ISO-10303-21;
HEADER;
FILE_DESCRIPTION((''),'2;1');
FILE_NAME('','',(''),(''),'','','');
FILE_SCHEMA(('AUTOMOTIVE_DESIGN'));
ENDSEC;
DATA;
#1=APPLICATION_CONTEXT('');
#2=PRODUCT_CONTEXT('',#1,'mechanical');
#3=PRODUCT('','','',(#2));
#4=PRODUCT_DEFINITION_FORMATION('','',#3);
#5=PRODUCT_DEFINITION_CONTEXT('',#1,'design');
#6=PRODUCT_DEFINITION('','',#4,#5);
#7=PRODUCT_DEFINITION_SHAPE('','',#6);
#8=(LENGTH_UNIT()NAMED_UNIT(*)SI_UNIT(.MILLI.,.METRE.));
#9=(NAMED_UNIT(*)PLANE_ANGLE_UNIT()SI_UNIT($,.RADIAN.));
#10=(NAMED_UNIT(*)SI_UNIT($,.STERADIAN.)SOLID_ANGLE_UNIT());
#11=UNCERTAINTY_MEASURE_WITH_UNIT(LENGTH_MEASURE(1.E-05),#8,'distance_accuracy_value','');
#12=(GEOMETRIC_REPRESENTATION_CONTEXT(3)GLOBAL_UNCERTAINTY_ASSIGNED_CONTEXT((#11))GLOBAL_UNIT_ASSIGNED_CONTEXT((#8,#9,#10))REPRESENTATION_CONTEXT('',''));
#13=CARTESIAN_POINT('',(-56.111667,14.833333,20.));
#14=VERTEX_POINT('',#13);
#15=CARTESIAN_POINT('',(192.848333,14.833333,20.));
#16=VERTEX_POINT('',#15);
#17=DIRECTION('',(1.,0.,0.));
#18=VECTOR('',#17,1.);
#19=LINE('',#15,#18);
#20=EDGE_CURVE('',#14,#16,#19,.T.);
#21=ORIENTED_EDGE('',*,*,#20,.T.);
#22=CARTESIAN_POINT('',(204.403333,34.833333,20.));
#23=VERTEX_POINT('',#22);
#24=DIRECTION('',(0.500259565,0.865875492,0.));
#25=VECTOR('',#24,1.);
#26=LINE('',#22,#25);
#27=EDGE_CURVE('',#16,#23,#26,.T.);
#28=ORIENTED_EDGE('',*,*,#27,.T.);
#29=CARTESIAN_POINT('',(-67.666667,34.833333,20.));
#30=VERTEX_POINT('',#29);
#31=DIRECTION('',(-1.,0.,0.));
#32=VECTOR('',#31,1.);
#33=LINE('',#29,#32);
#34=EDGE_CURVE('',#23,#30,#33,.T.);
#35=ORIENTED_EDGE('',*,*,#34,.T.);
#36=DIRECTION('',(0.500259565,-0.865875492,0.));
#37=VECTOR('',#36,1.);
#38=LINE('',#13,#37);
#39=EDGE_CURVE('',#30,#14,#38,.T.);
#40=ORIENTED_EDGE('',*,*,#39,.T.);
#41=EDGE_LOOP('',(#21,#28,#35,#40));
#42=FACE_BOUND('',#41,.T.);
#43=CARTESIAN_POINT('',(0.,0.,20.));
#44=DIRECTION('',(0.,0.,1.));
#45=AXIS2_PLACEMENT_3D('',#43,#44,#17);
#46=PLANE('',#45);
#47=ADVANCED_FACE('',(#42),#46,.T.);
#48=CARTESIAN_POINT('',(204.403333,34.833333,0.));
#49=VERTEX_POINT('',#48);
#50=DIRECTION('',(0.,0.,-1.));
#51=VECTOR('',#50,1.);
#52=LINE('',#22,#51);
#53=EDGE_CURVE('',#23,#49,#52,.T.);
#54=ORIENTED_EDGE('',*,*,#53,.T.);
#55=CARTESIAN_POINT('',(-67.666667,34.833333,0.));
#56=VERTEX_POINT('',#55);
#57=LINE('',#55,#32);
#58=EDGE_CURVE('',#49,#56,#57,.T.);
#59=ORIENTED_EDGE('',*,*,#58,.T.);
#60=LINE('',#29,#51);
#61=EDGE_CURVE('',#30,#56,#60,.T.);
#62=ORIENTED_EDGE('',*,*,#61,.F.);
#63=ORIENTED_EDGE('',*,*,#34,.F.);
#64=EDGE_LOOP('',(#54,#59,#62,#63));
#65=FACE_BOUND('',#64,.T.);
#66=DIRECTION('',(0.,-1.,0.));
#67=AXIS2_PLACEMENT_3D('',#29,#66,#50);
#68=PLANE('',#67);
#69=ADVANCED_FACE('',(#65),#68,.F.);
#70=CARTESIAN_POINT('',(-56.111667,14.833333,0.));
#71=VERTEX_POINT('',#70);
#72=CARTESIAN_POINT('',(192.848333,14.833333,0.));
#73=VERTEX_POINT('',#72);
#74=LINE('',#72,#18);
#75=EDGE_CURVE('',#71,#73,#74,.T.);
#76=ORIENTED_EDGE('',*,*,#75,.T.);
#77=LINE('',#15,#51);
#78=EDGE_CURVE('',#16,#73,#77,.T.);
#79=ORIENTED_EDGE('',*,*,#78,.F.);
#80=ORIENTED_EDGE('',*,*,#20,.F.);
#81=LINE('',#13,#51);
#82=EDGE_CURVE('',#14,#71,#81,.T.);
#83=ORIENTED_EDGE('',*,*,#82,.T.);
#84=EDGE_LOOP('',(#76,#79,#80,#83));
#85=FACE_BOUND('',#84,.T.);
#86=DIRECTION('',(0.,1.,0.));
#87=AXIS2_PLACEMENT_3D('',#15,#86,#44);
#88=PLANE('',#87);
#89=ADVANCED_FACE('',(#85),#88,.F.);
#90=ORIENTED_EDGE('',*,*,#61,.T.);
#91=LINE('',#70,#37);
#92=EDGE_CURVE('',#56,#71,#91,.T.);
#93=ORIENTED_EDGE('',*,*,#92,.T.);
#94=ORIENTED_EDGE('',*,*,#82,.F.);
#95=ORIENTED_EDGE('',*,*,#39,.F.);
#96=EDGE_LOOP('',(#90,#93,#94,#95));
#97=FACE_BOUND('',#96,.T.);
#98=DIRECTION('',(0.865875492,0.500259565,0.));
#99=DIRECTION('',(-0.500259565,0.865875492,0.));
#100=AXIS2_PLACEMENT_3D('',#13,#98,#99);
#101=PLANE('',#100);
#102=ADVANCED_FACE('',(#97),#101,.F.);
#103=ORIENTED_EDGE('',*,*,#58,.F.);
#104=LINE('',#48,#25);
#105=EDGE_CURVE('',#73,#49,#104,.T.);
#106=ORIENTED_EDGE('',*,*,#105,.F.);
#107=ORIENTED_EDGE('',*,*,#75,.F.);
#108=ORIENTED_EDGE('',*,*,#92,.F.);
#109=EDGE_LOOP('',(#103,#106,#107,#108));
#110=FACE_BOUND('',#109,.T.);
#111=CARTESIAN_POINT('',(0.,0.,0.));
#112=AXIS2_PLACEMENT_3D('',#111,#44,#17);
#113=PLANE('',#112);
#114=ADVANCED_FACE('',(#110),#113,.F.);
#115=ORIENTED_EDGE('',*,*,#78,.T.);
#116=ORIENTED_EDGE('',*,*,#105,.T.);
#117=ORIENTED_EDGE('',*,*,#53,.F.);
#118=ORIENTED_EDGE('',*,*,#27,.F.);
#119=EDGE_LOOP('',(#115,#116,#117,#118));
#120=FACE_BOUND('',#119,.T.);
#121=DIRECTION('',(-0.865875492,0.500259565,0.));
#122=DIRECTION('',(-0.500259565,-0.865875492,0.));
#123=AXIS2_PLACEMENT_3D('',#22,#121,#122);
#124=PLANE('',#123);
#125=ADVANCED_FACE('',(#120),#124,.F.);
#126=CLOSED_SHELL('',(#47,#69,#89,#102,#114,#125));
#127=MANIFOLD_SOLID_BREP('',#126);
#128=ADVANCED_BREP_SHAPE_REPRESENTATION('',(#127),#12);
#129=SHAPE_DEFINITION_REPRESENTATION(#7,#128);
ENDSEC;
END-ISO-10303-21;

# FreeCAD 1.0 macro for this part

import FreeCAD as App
import Part
import Sketcher
from FreeCAD import Vector


def add_polygon(sketch, points):
    """Adds a closed chain of lines whose ends are joined by coincident constraints."""
    first, n = sketch.GeometryCount, len(points)
    for a, b in zip(points, points[1:] + points[:1]):
        sketch.addGeometry(Part.LineSegment(App.Vector(*a, 0), App.Vector(*b, 0)), False)
    for i in range(n):
        sketch.addConstraint(Sketcher.Constraint("Coincident", first + i, 2, first + (i + 1) % n, 1))

doc = App.newDocument("Part")
body = doc.addObject("PartDesign::Body", "Body")

sketch1 = body.newObject("Sketcher::SketchObject", "Sketch")
sketch1.AttachmentSupport = (doc.getObject("XY_Plane"), [""])
sketch1.MapMode = "FlatFace"
add_polygon(sketch1, [(204, 35), (-68, 35), (-56, 15), (193, 15)])
sketch1.addConstraint([
    Sketcher.Constraint("Horizontal", 0),
    Sketcher.Constraint("Horizontal", 2),
    Sketcher.Constraint("Equal", 1, 3),
    Sketcher.Constraint("DistanceY", 1, 2, 0, 2, 20.0),
    Sketcher.Constraint("DistanceX", 0, 2, 0, 1, 272.07),
    Sketcher.Constraint("DistanceX", 2, 1, 2, 2, 248.96),
    Sketcher.Constraint("DistanceX", 0, 2, -1, 1, 67.666667),
    Sketcher.Constraint("DistanceY", -1, 1, 0, 2, 34.833333),
])
pad1 = body.newObject("PartDesign::Pad", "Pad")
pad1.Profile = sketch1
pad1.Length = 20

doc.recompute()
